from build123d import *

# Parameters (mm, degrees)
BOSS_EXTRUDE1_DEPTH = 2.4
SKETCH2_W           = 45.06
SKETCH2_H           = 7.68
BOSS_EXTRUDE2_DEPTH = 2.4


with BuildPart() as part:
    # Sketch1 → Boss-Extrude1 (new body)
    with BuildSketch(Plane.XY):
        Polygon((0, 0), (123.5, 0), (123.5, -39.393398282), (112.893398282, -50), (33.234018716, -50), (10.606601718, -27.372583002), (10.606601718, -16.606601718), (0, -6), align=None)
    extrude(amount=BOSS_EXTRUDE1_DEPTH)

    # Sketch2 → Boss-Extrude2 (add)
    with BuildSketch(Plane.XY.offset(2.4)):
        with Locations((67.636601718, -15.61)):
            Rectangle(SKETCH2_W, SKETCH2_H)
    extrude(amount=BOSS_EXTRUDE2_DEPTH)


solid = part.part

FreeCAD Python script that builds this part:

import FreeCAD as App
import Part
import Sketcher

V = App.Vector
Q = App.Units.Quantity


def add_polygon(sketch, points):
    """Adds a closed chain of lines whose ends are joined by coincident constraints."""
    first, n = sketch.GeometryCount, len(points)
    for a, b in zip(points, points[1:] + points[:1]):
        sketch.addGeometry(Part.LineSegment(App.Vector(*a, 0), App.Vector(*b, 0)), False)
    for i in range(n):
        sketch.addConstraint(Sketcher.Constraint("Coincident", first + i, 2, first + (i + 1) % n, 1))

doc = App.newDocument("Part")
body = doc.addObject("PartDesign::Body", "Body")

# Sketch on XY plane
sketch1 = doc.addObject("Sketcher::SketchObject", "Sketch")
body.addObject(sketch1)
sketch1.AttachmentSupport = (doc.XY_Plane, [""])
sketch1.MapMode = "FlatFace"
add_polygon(sketch1, [(124, 0), (0, 0), (0, -6), (11, -17), (11, -27), (33, -50), (113, -50), (124, -39)])  # lines 0-7
sketch1.addConstraint(Sketcher.Constraint("Horizontal", 0))
sketch1.addConstraint(Sketcher.Constraint("Vertical", 1))
sketch1.addConstraint(Sketcher.Constraint("Vertical", 3))
sketch1.addConstraint(Sketcher.Constraint("Horizontal", 5))
sketch1.addConstraint(Sketcher.Constraint("Vertical", 7))
sketch1.addConstraint(Sketcher.Constraint("Coincident", 0, 2, -1, 1))
sketch1.addConstraint(Sketcher.Constraint("Parallel", 2, 4))
sketch1.addConstraint(Sketcher.Constraint("Perpendicular", 4, 6))
sketch1.addConstraint(Sketcher.Constraint("Equal", 2, 6))
sketch1.addConstraint(Sketcher.Constraint("DistanceY", 1, 2, 1, 1, 6.0))
sketch1.addConstraint(Sketcher.Constraint("Angle", 2, Q("-45 deg")))
sketch1.addConstraint(Sketcher.Constraint("Distance", 2, 15.0))
sketch1.addConstraint(Sketcher.Constraint("Distance", 4, 32.0))
sketch1.addConstraint(Sketcher.Constraint("DistanceX", 0, 2, 0, 1, 123.5))
sketch1.addConstraint(Sketcher.Constraint("DistanceY", 4, 2, -1, 1, 50.0))
pad1 = doc.addObject("PartDesign::Pad", "Pad")
body.addObject(pad1)
pad1.Profile = sketch1
pad1.Length = 2.4

# Sketch on XY plane
sketch2 = doc.addObject("Sketcher::SketchObject", "Sketch001")
body.addObject(sketch2)
sketch2.AttachmentSupport = (doc.XY_Plane, [""])
sketch2.MapMode = "FlatFace"
sketch2.AttachmentOffset = App.Placement(V(0, 0, 2.4), App.Rotation())
add_polygon(sketch2, [(45, -12), (45, -19), (90, -19), (90, -12)])  # lines 0-3
sketch2.addConstraint(Sketcher.Constraint("Vertical", 0))
sketch2.addConstraint(Sketcher.Constraint("Horizontal", 1))
sketch2.addConstraint(Sketcher.Constraint("Vertical", 2))
sketch2.addConstraint(Sketcher.Constraint("Horizontal", 3))
sketch2.addConstraint(Sketcher.Constraint("DistanceX", 1, 1, 1, 2, 45.06))
sketch2.addConstraint(Sketcher.Constraint("DistanceY", 0, 2, 0, 1, 7.68))
sketch2.addConstraint(Sketcher.Constraint("DistanceY", 0, 2, -1, 1, 19.45))
sketch2.addConstraint(Sketcher.Constraint("DistanceX", -1, 1, 0, 2, 45.106602))
pad2 = doc.addObject("PartDesign::Pad", "Pad001")
body.addObject(pad2)
pad2.Profile = sketch2
pad2.Length = 2.4

doc.recompute()
